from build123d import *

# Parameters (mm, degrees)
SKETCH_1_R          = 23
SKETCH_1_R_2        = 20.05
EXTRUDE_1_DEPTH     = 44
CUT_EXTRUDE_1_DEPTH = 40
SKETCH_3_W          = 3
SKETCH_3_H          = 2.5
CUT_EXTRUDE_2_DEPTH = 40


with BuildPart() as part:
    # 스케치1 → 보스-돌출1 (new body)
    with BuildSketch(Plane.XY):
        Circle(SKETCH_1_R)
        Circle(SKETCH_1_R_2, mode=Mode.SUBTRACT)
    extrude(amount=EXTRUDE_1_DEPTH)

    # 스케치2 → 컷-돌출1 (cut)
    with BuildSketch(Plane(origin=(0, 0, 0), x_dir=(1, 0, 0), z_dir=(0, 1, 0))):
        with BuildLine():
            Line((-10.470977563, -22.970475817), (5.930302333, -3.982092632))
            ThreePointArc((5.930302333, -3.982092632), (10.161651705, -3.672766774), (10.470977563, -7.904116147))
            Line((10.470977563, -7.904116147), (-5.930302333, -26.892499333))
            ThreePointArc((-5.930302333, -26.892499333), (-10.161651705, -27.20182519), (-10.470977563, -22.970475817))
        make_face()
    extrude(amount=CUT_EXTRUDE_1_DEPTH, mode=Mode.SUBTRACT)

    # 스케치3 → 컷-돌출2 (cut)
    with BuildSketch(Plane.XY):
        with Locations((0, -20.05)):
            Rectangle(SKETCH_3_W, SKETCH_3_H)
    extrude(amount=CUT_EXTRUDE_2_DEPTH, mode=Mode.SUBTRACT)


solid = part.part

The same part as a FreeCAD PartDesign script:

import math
import FreeCAD as App
import Part
import Sketcher
from FreeCAD import Vector
Q = App.Units.Quantity

doc = App.newDocument("Part")
body = doc.addObject("PartDesign::Body", "Body")

# Sketch on XY plane
sketch1 = body.newObject("Sketcher::SketchObject", "Sketch")
sketch1.AttachmentSupport = (doc.getObject("XY_Plane"), [""])
sketch1.MapMode = "FlatFace"
sketch1.addGeometry([
    Part.Circle(Vector(0, 0, 0), Vector(0, 0, 1), 23),
    Part.Circle(Vector(0, 0, 0), Vector(0, 0, 1), 20),
], False)
sketch1.addConstraint([
    Sketcher.Constraint("Coincident", 0, 3, -1, 1),
    Sketcher.Constraint("Coincident", 1, 3, -1, 1),
    Sketcher.Constraint("Diameter", 0, Q("46 mm")),
    Sketcher.Constraint("Diameter", 1, Q("40.1 mm")),
])
pad1 = body.newObject("PartDesign::Pad", "Pad")
pad1.Profile = sketch1
pad1.Length = 44

# Sketch on XZ plane
sketch2 = body.newObject("Sketcher::SketchObject", "Sketch001")
sketch2.AttachmentSupport = (doc.getObject("XZ_Plane"), [""])
sketch2.MapMode = "FlatFace"
sketch2.addGeometry([
    Part.LineSegment(Vector(5.9, 4, 0), Vector(-10.5, 23, 0)),
    Part.ArcOfCircle(Part.Circle(Vector(-8.2, 24.9, 0), Vector(0, 0, 1), 3), math.radians(41), math.radians(221)),
    Part.LineSegment(Vector(-5.9, 26.9, 0), Vector(10.5, 7.9, 0)),
    Part.ArcOfCircle(Part.Circle(Vector(8.2, 5.9, 0), Vector(0, 0, 1), 3), math.radians(-139), math.radians(41)),
], False)
sketch2.addConstraint([
    Sketcher.Constraint("Tangent", 0, 2, 1, 2),
    Sketcher.Constraint("Tangent", 1, 1, 2, 1),
    Sketcher.Constraint("Tangent", 2, 2, 3, 2),
    Sketcher.Constraint("Tangent", 3, 1, 0, 1),
    Sketcher.Constraint("Equal", 1, 3),
    Sketcher.Constraint("Radius", 1, Q("3 mm")),
    Sketcher.Constraint("DistanceY", -1, 1, 1, 1, Q("26.892499 mm")),
    Sketcher.Constraint("DistanceX", 1, 3, -1, 1, Q("8.20064 mm")),
    Sketcher.Constraint("DistanceX", -1, 1, 3, 3, Q("8.20064 mm")),
    Sketcher.Constraint("DistanceY", 0, 2, 1, 3, Q("1.961012 mm")),
])
pocket1 = body.newObject("PartDesign::Pocket", "Pocket")
pocket1.Profile = sketch2
pocket1.Length = 40

# Sketch on XY plane
sketch3 = body.newObject("Sketcher::SketchObject", "Sketch002")
sketch3.AttachmentSupport = (doc.getObject("XY_Plane"), [""])
sketch3.MapMode = "FlatFace"
sketch3.addGeometry([
    Part.LineSegment(Vector(-1.5, -18.8, 0), Vector(-1.5, -21.3, 0)),
    Part.LineSegment(Vector(-1.5, -21.3, 0), Vector(1.5, -21.3, 0)),
    Part.LineSegment(Vector(1.5, -21.3, 0), Vector(1.5, -18.8, 0)),
    Part.LineSegment(Vector(1.5, -18.8, 0), Vector(-1.5, -18.8, 0)),
], False)
sketch3.addConstraint([
    Sketcher.Constraint("Coincident", 0, 2, 1, 1),
    Sketcher.Constraint("Coincident", 1, 2, 2, 1),
    Sketcher.Constraint("Coincident", 2, 2, 3, 1),
    Sketcher.Constraint("Coincident", 3, 2, 0, 1),
    Sketcher.Constraint("Vertical", 0),
    Sketcher.Constraint("Horizontal", 1),
    Sketcher.Constraint("Vertical", 2),
    Sketcher.Constraint("Horizontal", 3),
    Sketcher.Constraint("DistanceX", 1, 1, 1, 2, Q("3 mm")),
    Sketcher.Constraint("DistanceY", 0, 2, 0, 1, Q("2.5 mm")),
    Sketcher.Constraint("DistanceX", 0, 2, -1, 1, Q("1.5 mm")),
    Sketcher.Constraint("DistanceY", 0, 2, -1, 1, Q("21.3 mm")),
])
pocket2 = body.newObject("PartDesign::Pocket", "Pocket001")
pocket2.Profile = sketch3
pocket2.Length = 40
pocket2.Reversed = True

doc.recompute()
